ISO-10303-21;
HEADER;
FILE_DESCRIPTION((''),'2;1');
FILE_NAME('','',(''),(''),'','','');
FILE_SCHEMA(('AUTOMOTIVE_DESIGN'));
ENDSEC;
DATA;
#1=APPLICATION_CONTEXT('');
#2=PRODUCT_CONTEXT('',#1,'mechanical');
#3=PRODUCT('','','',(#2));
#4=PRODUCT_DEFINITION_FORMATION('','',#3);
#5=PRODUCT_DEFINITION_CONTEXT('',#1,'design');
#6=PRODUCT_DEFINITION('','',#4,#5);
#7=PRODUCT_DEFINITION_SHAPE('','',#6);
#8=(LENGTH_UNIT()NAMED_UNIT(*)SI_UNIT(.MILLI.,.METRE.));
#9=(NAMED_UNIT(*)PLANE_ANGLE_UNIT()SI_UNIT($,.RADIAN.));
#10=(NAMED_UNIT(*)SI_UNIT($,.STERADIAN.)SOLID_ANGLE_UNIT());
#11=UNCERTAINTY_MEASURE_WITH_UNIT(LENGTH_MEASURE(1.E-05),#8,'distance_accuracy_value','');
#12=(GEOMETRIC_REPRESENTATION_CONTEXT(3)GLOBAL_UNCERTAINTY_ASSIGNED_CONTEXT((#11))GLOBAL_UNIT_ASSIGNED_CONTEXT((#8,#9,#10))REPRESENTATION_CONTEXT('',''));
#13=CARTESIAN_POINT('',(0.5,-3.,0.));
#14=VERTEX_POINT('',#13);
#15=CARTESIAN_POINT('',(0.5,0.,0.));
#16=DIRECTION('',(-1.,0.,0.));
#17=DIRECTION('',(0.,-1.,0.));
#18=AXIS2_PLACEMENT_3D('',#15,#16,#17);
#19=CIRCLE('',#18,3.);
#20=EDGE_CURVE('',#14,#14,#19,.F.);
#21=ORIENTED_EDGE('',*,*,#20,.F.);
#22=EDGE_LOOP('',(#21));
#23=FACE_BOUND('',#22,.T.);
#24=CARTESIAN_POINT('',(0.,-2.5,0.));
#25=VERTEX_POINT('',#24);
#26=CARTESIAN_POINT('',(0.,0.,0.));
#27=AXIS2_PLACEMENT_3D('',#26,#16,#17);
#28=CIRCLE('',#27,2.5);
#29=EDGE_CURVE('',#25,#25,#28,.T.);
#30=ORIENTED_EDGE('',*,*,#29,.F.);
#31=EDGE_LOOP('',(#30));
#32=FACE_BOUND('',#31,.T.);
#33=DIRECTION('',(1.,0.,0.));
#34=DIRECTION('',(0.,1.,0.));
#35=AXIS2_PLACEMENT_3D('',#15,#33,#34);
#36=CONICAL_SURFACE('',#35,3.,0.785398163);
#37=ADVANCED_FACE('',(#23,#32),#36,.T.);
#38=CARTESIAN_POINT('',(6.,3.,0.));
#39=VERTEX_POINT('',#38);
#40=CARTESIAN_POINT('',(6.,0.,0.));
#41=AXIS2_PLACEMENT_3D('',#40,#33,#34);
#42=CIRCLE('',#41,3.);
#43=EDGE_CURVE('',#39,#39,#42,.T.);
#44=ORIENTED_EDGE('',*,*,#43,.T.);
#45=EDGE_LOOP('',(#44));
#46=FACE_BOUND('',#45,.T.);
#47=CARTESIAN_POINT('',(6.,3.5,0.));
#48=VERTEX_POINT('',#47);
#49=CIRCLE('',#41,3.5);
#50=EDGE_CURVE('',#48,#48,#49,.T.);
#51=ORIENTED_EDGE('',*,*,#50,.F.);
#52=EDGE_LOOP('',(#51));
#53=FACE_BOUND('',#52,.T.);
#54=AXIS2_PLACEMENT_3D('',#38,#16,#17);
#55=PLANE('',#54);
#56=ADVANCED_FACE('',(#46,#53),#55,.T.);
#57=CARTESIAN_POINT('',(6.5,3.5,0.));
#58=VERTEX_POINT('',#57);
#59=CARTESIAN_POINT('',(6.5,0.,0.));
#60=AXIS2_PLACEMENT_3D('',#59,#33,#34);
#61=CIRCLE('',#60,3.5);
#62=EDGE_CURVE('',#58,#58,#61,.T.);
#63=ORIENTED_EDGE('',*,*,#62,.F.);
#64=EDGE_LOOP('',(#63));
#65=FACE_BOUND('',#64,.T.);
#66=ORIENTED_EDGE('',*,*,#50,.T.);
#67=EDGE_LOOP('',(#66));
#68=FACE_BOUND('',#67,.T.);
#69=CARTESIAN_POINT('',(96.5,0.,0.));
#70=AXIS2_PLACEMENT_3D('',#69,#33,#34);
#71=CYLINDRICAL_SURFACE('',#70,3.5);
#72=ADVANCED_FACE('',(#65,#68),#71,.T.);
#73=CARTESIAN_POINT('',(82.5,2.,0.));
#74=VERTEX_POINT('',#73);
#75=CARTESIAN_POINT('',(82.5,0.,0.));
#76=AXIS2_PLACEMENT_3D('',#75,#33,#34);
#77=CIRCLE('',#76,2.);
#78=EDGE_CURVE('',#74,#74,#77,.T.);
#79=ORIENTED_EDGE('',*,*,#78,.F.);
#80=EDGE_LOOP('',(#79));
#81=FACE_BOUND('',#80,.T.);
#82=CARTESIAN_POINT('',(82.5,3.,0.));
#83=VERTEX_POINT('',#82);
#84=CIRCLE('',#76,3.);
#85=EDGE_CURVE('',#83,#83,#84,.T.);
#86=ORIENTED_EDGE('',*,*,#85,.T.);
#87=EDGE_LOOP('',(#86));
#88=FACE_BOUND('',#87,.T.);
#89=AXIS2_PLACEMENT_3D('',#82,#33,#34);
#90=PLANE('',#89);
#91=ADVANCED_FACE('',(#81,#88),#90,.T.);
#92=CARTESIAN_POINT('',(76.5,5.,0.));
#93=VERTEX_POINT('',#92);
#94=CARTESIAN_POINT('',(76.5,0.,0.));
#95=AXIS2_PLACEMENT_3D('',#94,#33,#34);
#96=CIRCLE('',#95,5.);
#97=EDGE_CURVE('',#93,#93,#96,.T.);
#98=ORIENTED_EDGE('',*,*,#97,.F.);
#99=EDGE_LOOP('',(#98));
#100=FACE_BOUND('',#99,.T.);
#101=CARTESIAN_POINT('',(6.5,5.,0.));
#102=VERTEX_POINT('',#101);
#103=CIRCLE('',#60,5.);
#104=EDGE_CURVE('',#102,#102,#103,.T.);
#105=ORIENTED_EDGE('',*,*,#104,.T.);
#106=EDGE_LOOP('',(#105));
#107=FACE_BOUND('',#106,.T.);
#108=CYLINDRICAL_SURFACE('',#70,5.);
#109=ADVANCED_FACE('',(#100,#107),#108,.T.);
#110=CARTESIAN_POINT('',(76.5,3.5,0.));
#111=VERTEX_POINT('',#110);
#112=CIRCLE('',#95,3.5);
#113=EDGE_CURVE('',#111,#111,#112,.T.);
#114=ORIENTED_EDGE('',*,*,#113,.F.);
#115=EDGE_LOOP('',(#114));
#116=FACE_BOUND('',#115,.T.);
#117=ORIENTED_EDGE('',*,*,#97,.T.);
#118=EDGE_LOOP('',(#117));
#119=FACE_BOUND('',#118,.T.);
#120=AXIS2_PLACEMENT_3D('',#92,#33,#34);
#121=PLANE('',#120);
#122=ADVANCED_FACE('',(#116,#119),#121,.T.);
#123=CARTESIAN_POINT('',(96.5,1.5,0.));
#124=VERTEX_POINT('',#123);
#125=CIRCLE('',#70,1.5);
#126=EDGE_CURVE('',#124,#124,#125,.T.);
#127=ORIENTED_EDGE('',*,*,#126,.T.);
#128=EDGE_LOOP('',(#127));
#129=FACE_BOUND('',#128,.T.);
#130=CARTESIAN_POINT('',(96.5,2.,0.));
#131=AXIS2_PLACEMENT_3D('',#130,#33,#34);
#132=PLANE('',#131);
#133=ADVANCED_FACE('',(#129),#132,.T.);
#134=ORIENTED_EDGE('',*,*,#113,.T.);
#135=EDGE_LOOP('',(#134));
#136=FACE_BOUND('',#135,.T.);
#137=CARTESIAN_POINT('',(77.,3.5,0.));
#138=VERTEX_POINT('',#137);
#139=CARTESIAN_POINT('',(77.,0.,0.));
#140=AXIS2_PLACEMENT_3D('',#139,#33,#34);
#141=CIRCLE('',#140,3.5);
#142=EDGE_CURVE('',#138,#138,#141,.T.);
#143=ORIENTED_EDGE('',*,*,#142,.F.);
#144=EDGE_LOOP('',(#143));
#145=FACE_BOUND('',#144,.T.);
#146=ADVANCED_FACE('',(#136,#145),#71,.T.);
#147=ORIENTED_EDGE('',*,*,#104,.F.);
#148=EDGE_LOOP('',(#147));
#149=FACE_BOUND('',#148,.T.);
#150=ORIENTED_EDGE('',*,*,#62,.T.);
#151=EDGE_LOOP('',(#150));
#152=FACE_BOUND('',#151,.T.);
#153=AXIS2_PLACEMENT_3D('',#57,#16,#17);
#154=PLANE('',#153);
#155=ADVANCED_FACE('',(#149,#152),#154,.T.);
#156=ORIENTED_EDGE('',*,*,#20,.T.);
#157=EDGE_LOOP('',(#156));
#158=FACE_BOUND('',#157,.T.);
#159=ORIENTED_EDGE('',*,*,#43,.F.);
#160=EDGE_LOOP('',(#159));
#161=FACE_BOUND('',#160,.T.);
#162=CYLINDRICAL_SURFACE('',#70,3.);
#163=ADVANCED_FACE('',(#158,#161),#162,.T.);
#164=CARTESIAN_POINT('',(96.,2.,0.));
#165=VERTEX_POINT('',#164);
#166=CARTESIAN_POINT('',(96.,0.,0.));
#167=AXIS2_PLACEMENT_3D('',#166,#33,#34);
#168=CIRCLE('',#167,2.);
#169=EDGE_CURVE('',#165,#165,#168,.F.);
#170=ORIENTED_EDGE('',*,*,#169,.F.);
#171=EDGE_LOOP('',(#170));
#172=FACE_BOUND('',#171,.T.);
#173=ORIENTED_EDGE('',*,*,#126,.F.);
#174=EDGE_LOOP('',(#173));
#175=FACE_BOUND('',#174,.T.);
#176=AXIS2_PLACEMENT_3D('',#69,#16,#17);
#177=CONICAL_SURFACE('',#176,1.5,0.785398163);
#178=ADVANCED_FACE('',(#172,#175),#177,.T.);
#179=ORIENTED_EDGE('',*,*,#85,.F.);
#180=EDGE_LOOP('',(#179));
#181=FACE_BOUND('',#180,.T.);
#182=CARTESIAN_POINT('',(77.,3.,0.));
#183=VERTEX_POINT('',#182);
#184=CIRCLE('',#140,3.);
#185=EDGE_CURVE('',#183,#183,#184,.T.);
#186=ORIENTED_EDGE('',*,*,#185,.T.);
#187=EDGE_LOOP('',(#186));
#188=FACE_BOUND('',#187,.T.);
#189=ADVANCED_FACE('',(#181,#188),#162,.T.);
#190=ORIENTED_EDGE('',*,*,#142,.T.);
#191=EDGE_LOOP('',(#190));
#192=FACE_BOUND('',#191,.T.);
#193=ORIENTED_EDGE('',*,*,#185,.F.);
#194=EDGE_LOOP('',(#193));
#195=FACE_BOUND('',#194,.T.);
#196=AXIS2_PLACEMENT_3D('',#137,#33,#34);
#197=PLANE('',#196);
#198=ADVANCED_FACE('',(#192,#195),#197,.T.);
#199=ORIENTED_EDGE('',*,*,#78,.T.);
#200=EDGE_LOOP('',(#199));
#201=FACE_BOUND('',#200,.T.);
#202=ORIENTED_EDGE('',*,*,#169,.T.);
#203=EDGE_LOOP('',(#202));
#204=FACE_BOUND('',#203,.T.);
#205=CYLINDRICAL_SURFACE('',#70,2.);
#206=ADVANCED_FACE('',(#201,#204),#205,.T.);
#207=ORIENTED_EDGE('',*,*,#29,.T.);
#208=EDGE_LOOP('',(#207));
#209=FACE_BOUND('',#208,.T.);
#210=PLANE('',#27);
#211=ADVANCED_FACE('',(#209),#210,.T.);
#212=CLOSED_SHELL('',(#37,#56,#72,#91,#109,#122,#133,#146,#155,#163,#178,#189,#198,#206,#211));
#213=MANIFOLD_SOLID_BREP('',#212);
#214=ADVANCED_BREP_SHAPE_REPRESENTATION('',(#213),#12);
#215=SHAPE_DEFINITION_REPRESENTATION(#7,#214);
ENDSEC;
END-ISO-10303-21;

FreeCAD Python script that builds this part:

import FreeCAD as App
import Part
import Sketcher
from FreeCAD import Vector
Q = App.Units.Quantity


def edges_at(feature, points):
    """Names of the edges that pass closest to the given points."""
    edges = feature.Shape.Edges
    near = lambda p: min(range(len(edges)), key=lambda i: edges[i].distToShape(Part.Vertex(*p))[0])
    return sorted({f"Edge{near(p) + 1}" for p in points})

doc = App.newDocument("Part")
params = doc.addObject("Spreadsheet::Sheet", "Params")
for row, (alias, value) in enumerate([
    ("sketch1_width", "14 mm"),
    ("sketch1_width2", "70 mm"),
    ("sketch1_width3", "6 mm"),
    ("sketch1_height", "3 mm"),
    ("sketch1_height2", "2 mm"),
    ("revolution_angle", "360 deg"),
    ("chamfer_size", "0.5 mm"),
], start=1):
    params.set(f"A{row}", alias)
    params.set(f"B{row}", "=" + value)
    params.setAlias(f"B{row}", alias)

body = doc.addObject("PartDesign::Body", "Body")

# Sketch on XY plane
sketch1 = doc.addObject("Sketcher::SketchObject", "Sketch")
body.addObject(sketch1)
sketch1.AttachmentSupport = (doc.XY_Plane, [""])
sketch1.MapMode = "FlatFace"
sketch1.addGeometry(Part.LineSegment(Vector(0, 3, 0), Vector(0, 0, 0)), False)
sketch1.addGeometry(Part.LineSegment(Vector(0, 0, 0), Vector(96.5, 0, 0)), False)
sketch1.addGeometry(Part.LineSegment(Vector(96.5, 0, 0), Vector(96.5, 2, 0)), False)
sketch1.addGeometry(Part.LineSegment(Vector(96.5, 2, 0), Vector(82.5, 2, 0)), False)
sketch1.addGeometry(Part.LineSegment(Vector(82.5, 2, 0), Vector(82.5, 3, 0)), False)
sketch1.addGeometry(Part.LineSegment(Vector(82.5, 3, 0), Vector(77, 3, 0)), False)
sketch1.addGeometry(Part.LineSegment(Vector(77, 3, 0), Vector(77, 3.5, 0)), False)
sketch1.addGeometry(Part.LineSegment(Vector(77, 3.5, 0), Vector(76.5, 3.5, 0)), False)
sketch1.addGeometry(Part.LineSegment(Vector(76.5, 3.5, 0), Vector(76.5, 5, 0)), False)
sketch1.addGeometry(Part.LineSegment(Vector(76.5, 5, 0), Vector(6.5, 5, 0)), False)
sketch1.addGeometry(Part.LineSegment(Vector(6.5, 5, 0), Vector(6.5, 3.5, 0)), False)
sketch1.addGeometry(Part.LineSegment(Vector(6.5, 3.5, 0), Vector(6, 3.5, 0)), False)
sketch1.addGeometry(Part.LineSegment(Vector(6, 3.5, 0), Vector(6, 3, 0)), False)
sketch1.addGeometry(Part.LineSegment(Vector(6, 3, 0), Vector(0, 3, 0)), False)
sketch1.addConstraint(Sketcher.Constraint("Coincident", 0, 2, 1, 1))
sketch1.addConstraint(Sketcher.Constraint("Coincident", 1, 2, 2, 1))
sketch1.addConstraint(Sketcher.Constraint("Coincident", 2, 2, 3, 1))
sketch1.addConstraint(Sketcher.Constraint("Coincident", 3, 2, 4, 1))
sketch1.addConstraint(Sketcher.Constraint("Coincident", 4, 2, 5, 1))
sketch1.addConstraint(Sketcher.Constraint("Coincident", 5, 2, 6, 1))
sketch1.addConstraint(Sketcher.Constraint("Coincident", 6, 2, 7, 1))
sketch1.addConstraint(Sketcher.Constraint("Coincident", 7, 2, 8, 1))
sketch1.addConstraint(Sketcher.Constraint("Coincident", 8, 2, 9, 1))
sketch1.addConstraint(Sketcher.Constraint("Coincident", 9, 2, 10, 1))
sketch1.addConstraint(Sketcher.Constraint("Coincident", 10, 2, 11, 1))
sketch1.addConstraint(Sketcher.Constraint("Coincident", 11, 2, 12, 1))
sketch1.addConstraint(Sketcher.Constraint("Coincident", 12, 2, 13, 1))
sketch1.addConstraint(Sketcher.Constraint("Coincident", 13, 2, 0, 1))
sketch1.addConstraint(Sketcher.Constraint("Vertical", 0))
sketch1.addConstraint(Sketcher.Constraint("Horizontal", 1))
sketch1.addConstraint(Sketcher.Constraint("Vertical", 2))
sketch1.addConstraint(Sketcher.Constraint("Horizontal", 3))
sketch1.addConstraint(Sketcher.Constraint("Vertical", 4))
sketch1.addConstraint(Sketcher.Constraint("Horizontal", 5))
sketch1.addConstraint(Sketcher.Constraint("Vertical", 6))
sketch1.addConstraint(Sketcher.Constraint("Horizontal", 7))
sketch1.addConstraint(Sketcher.Constraint("Vertical", 8))
sketch1.addConstraint(Sketcher.Constraint("Horizontal", 9))
sketch1.addConstraint(Sketcher.Constraint("Vertical", 10))
sketch1.addConstraint(Sketcher.Constraint("Horizontal", 11))
sketch1.addConstraint(Sketcher.Constraint("Vertical", 12))
sketch1.addConstraint(Sketcher.Constraint("Horizontal", 13))
sketch1.addConstraint(Sketcher.Constraint("Coincident", 0, 2, -1, 1))
sketch1.addConstraint(Sketcher.Constraint("Horizontal", 7, 2, 10, 2))
sketch1.addConstraint(Sketcher.Constraint("Horizontal", 5, 2, 12, 2))
sketch1.addConstraint(Sketcher.Constraint("Equal", 7, 11))
sketch1.addConstraint(Sketcher.Constraint("Equal", 11, 6))
sketch1.addConstraint(Sketcher.Constraint("DistanceX", 3, 2, 3, 1, Q("14 mm")))
sketch1.addConstraint(Sketcher.Constraint("DistanceX", 9, 2, 9, 1, Q("70 mm")))
sketch1.addConstraint(Sketcher.Constraint("DistanceX", 13, 2, 13, 1, Q("6 mm")))
sketch1.addConstraint(Sketcher.Constraint("DistanceY", 0, 2, 0, 1, Q("3 mm")))
sketch1.addConstraint(Sketcher.Constraint("DistanceY", 2, 1, 2, 2, Q("2 mm")))
sketch1.addConstraint(Sketcher.Constraint("DistanceX", 1, 1, 1, 2, Q("96.5 mm")))
sketch1.addConstraint(Sketcher.Constraint("DistanceX", 5, 2, 5, 1, Q("5.5 mm")))
sketch1.addConstraint(Sketcher.Constraint("DistanceY", 8, 1, 8, 2, Q("1.5 mm")))
sketch1.setExpression("Constraints[33]", "Params.sketch1_width")
sketch1.setExpression("Constraints[34]", "Params.sketch1_width2")
sketch1.setExpression("Constraints[35]", "Params.sketch1_width3")
sketch1.setExpression("Constraints[36]", "Params.sketch1_height")
sketch1.setExpression("Constraints[37]", "Params.sketch1_height2")
revolution = doc.addObject("PartDesign::Revolution", "Revolution")
body.addObject(revolution)
revolution.Profile = sketch1
revolution.ReferenceAxis = (sketch1, ["H_Axis"])
revolution.setExpression("Angle", "Params.revolution_angle")
doc.recompute()

chamfer = doc.addObject("PartDesign::Chamfer", "Chamfer")
body.addObject(chamfer)
chamfer.Base = (revolution, edges_at(revolution, [(0, -3, 0), (96.5, -2, 0)]))
chamfer.setExpression("Size", "Params.chamfer_size")

doc.recompute()
